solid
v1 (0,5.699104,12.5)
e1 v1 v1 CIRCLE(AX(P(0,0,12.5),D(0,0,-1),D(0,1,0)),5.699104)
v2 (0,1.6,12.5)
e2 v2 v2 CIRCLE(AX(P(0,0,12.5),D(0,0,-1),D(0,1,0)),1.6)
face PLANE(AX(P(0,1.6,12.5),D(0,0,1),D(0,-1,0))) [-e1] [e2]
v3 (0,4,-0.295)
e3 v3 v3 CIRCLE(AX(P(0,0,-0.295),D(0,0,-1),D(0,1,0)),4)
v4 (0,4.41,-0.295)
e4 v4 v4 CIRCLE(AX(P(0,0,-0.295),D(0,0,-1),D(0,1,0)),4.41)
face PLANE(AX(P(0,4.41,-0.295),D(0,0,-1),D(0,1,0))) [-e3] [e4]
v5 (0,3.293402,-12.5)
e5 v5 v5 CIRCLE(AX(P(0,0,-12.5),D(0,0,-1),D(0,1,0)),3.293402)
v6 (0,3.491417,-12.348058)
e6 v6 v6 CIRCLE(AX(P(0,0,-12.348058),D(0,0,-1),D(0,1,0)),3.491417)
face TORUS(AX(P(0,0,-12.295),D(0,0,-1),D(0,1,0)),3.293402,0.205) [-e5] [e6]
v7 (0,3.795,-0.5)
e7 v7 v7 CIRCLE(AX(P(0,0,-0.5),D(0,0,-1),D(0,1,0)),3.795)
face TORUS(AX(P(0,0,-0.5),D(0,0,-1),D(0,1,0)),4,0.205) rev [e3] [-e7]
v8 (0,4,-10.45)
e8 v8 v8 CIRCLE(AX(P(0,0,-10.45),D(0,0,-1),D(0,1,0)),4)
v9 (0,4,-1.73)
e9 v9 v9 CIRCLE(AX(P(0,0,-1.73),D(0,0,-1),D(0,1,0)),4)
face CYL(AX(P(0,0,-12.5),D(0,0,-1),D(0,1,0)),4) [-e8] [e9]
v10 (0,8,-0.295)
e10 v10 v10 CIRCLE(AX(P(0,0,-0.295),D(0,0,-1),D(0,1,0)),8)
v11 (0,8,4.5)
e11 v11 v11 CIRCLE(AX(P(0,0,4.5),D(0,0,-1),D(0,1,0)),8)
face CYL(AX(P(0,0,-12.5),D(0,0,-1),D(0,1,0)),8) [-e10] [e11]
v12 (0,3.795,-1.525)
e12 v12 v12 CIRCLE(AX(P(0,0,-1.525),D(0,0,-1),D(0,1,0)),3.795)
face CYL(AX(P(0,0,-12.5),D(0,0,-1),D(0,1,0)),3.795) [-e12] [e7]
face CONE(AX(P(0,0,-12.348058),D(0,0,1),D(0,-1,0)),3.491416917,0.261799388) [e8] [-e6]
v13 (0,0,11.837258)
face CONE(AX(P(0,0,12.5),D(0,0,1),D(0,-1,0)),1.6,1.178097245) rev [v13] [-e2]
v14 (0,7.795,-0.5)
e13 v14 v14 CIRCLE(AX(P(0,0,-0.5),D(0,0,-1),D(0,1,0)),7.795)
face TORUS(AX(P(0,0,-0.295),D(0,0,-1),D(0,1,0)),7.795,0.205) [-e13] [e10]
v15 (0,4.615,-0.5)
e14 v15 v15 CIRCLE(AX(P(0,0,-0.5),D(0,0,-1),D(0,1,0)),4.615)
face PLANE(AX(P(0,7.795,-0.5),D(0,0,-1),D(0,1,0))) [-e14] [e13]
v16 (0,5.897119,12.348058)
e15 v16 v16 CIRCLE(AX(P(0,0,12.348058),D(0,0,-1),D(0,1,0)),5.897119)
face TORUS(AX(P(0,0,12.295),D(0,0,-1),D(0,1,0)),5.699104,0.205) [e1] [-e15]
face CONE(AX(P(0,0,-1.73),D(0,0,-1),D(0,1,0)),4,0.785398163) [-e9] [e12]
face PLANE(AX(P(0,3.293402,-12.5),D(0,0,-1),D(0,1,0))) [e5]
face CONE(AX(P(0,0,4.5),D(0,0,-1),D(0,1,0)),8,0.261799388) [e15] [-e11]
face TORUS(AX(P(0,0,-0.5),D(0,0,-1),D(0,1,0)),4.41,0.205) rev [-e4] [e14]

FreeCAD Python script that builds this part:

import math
import FreeCAD as App
import Part
import Sketcher
Q = App.Units.Quantity

doc = App.newDocument("Part")
params = doc.addObject("Spreadsheet::Sheet", "Params")
for row, (alias, value) in enumerate([
    ("sketch1_width", "0.41 mm"),
    ("sketch1_height", "8.72 mm"),
    ("revolution_angle", "360 deg"),
], start=1):
    params.set(f"A{row}", alias)
    params.set(f"B{row}", "=" + value)
    params.setAlias(f"B{row}", alias)

body = doc.addObject("PartDesign::Body", "Body")

# Sketch on YZ plane
sketch1 = body.newObject("Sketcher::SketchObject", "Sketch")
sketch1.AttachmentSupport = (doc.getObject("YZ_Plane"), [""])
sketch1.MapMode = "FlatFace"
sketch1.addGeometry([
    Part.LineSegment(App.Vector(5.699104, 12.5, 0), App.Vector(1.6, 12.5, 0)),  # 0
    Part.LineSegment(App.Vector(1.6, 12.5, 0), App.Vector(0, 11.837258, 0)),  # 1
    Part.LineSegment(App.Vector(0, 11.837258, 0), App.Vector(0, -12.5, 0)),  # 2
    Part.LineSegment(App.Vector(0, -12.5, 0), App.Vector(3.293402, -12.5, 0)),  # 3
    Part.ArcOfCircle(Part.Circle(App.Vector(3.293402, -12.295, 0), App.Vector(0, 0, 1), 0.205), math.radians(-90), math.radians(-14.999999)),  # 4
    Part.LineSegment(App.Vector(3.491417, -12.348058, 0), App.Vector(4, -10.45, 0)),  # 5
    Part.LineSegment(App.Vector(4, -10.45, 0), App.Vector(4, -1.73, 0)),  # 6
    Part.LineSegment(App.Vector(4, -1.73, 0), App.Vector(3.795, -1.525, 0)),  # 7
    Part.LineSegment(App.Vector(3.795, -1.525, 0), App.Vector(3.795, -0.5, 0)),  # 8
    Part.ArcOfCircle(Part.Circle(App.Vector(4, -0.5, 0), App.Vector(0, 0, 1), 0.205), math.radians(90), math.radians(180)),  # 9
    Part.LineSegment(App.Vector(4, -0.295, 0), App.Vector(4.41, -0.295, 0)),  # 10
    Part.ArcOfCircle(Part.Circle(App.Vector(4.41, -0.5, 0), App.Vector(0, 0, 1), 0.205), math.radians(0), math.radians(90)),  # 11
    Part.LineSegment(App.Vector(4.615, -0.5, 0), App.Vector(7.795, -0.5, 0)),  # 12
    Part.ArcOfCircle(Part.Circle(App.Vector(7.795, -0.295, 0), App.Vector(0, 0, 1), 0.205), math.radians(-90), math.radians(0)),  # 13
    Part.LineSegment(App.Vector(8, -0.295, 0), App.Vector(8, 4.5, 0)),  # 14
    Part.LineSegment(App.Vector(8, 4.5, 0), App.Vector(5.897119, 12.348058, 0)),  # 15
    Part.ArcOfCircle(Part.Circle(App.Vector(5.699104, 12.295, 0), App.Vector(0, 0, 1), 0.205), math.radians(14.999999), math.radians(90)),  # 16
], False)
sketch1.addConstraint([
    Sketcher.Constraint("Coincident", 0, 2, 1, 1),
    Sketcher.Constraint("Coincident", 1, 2, 2, 1),
    Sketcher.Constraint("Coincident", 2, 2, 3, 1),
    Sketcher.Constraint("Tangent", 3, 2, 4, 1),
    Sketcher.Constraint("Tangent", 4, 2, 5, 1),
    Sketcher.Constraint("Coincident", 5, 2, 6, 1),
    Sketcher.Constraint("Coincident", 6, 2, 7, 1),
    Sketcher.Constraint("Coincident", 7, 2, 8, 1),
    Sketcher.Constraint("Tangent", 8, 2, 9, 2),
    Sketcher.Constraint("Tangent", 9, 1, 10, 1),
    Sketcher.Constraint("Tangent", 10, 2, 11, 2),
    Sketcher.Constraint("Coincident", 11, 1, 12, 1),
    Sketcher.Constraint("Tangent", 12, 2, 13, 1),
    Sketcher.Constraint("Tangent", 13, 2, 14, 1),
    Sketcher.Constraint("Coincident", 14, 2, 15, 1),
    Sketcher.Constraint("Tangent", 15, 2, 16, 1),
    Sketcher.Constraint("Tangent", 16, 2, 0, 1),
    Sketcher.Constraint("Horizontal", 0),
    Sketcher.Constraint("Vertical", 2),
    Sketcher.Constraint("Horizontal", 3),
    Sketcher.Constraint("Vertical", 6),
    Sketcher.Constraint("Vertical", 8),
    Sketcher.Constraint("Horizontal", 10),
    Sketcher.Constraint("Horizontal", 12),
    Sketcher.Constraint("Vertical", 14),
    Sketcher.Constraint("Equal", 4, 9),
    Sketcher.Constraint("Equal", 9, 11),
    Sketcher.Constraint("Equal", 11, 13),
    Sketcher.Constraint("Equal", 13, 16),
    Sketcher.Constraint("PointOnObject", 1, 2, -2),
    Sketcher.Constraint("Horizontal", 13, 3, 9, 1),
    Sketcher.Constraint("Vertical", 9, 3, 5, 2),
    Sketcher.Constraint("Angle", 5, Q("75 deg")),
    Sketcher.Constraint("Angle", 7, Q("135 deg")),
    Sketcher.Constraint("Angle", 15, Q("105 deg")),
    Sketcher.Constraint("DistanceX", -1, 1, 9, 3, Q("4 mm")),
    Sketcher.Constraint("DistanceX", -1, 1, 13, 2, Q("8 mm")),
    Sketcher.Constraint("Angle", 1, Q("-157.5 deg")),
    Sketcher.Constraint("Radius", 4, Q("0.205 mm")),
    Sketcher.Constraint("DistanceY", 4, 3, 13, 3, Q("12 mm")),
    Sketcher.Constraint("DistanceY", 9, 3, 0, 2, Q("13 mm")),
    Sketcher.Constraint("DistanceY", 12, 2, 14, 2, Q("5 mm")),
    Sketcher.Constraint("DistanceX", 10, 1, 10, 2, Q("0.41 mm")),
    Sketcher.Constraint("DistanceY", 6, 1, 6, 2, Q("8.72 mm")),
    Sketcher.Constraint("DistanceY", 9, 3, -1, 1, Q("0.5 mm")),
    Sketcher.Constraint("DistanceX", -1, 1, 0, 2, Q("1.6 mm")),
    Sketcher.Constraint("DistanceY", 8, 1, 8, 2, Q("1.025 mm")),
])
sketch1.setExpression("Constraints[42]", "Params.sketch1_width")
sketch1.setExpression("Constraints[43]", "Params.sketch1_height")
revolution = body.newObject("PartDesign::Revolution", "Revolution")
revolution.Profile = sketch1
revolution.ReferenceAxis = (sketch1, ["V_Axis"])
revolution.setExpression("Angle", "Params.revolution_angle")

doc.recompute()
